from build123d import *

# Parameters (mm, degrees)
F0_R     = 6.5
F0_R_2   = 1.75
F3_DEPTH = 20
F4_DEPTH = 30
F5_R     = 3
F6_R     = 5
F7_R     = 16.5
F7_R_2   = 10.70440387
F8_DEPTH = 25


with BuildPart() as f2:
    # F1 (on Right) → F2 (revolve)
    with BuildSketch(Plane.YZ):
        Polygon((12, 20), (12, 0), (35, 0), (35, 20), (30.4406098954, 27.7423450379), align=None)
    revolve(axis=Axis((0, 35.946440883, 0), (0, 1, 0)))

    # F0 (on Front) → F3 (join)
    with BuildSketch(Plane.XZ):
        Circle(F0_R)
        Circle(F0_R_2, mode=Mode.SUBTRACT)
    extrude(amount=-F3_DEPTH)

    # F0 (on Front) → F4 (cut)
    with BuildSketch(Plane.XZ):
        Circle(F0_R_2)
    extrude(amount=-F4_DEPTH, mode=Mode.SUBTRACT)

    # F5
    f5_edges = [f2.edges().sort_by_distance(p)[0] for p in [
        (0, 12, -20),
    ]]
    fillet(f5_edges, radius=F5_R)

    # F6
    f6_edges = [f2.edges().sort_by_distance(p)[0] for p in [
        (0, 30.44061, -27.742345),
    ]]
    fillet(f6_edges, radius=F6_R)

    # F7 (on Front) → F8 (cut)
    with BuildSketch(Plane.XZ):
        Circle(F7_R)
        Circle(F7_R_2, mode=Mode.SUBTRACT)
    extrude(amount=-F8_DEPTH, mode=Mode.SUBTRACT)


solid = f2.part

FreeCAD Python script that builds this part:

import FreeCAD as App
import Part
import Sketcher
from FreeCAD import Vector


def edges_at(feature, points):
    """Names of the edges that pass closest to the given points."""
    edges = feature.Shape.Edges
    near = lambda p: min(range(len(edges)), key=lambda i: edges[i].distToShape(Part.Vertex(*p))[0])
    return sorted({f"Edge{near(p) + 1}" for p in points})

doc = App.newDocument("Part")
body = doc.addObject("PartDesign::Body", "Body")

sketch1 = body.newObject("Sketcher::SketchObject", "Sketch")
sketch1.AttachmentSupport = (doc.getObject("YZ_Plane"), [""])
sketch1.MapMode = "FlatFace"
sketch1.addGeometry([
    Part.LineSegment(Vector(12, 20, 0), Vector(12, 0, 0)),
    Part.LineSegment(Vector(12, 0, 0), Vector(35, 0, 0)),
    Part.LineSegment(Vector(35, 0, 0), Vector(35, 20, 0)),
    Part.LineSegment(Vector(35, 20, 0), Vector(30, 28, 0)),
    Part.LineSegment(Vector(30, 28, 0), Vector(12, 20, 0)),
], False)
sketch1.addConstraint([
    Sketcher.Constraint("Coincident", 0, 2, 1, 1),
    Sketcher.Constraint("Coincident", 1, 2, 2, 1),
    Sketcher.Constraint("Coincident", 2, 2, 3, 1),
    Sketcher.Constraint("Coincident", 3, 2, 4, 1),
    Sketcher.Constraint("Coincident", 4, 2, 0, 1),
    Sketcher.Constraint("Vertical", 0),
    Sketcher.Constraint("Horizontal", 1),
    Sketcher.Constraint("Vertical", 2),
    Sketcher.Constraint("PointOnObject", 0, 2, -1),
    Sketcher.Constraint("Horizontal", 2, 2, 4, 2),
    Sketcher.Constraint("DistanceX", 1, 1, 1, 2, 23.0),
    Sketcher.Constraint("DistanceY", 0, 2, 0, 1, 20.0),
    Sketcher.Constraint("Distance", 4, 20.0),
    Sketcher.Constraint("DistanceX", -1, 1, 0, 2, 12.0),
    Sketcher.Constraint("DistanceX", -1, 1, 3, 2, 30.44061),
])
revolution = body.newObject("PartDesign::Revolution", "Revolution")
revolution.Profile = sketch1
revolution.ReferenceAxis = (sketch1, ["H_Axis"])
revolution.Angle = 360

sketch2 = body.newObject("Sketcher::SketchObject", "Sketch001")
sketch2.AttachmentSupport = (doc.getObject("XZ_Plane"), [""])
sketch2.MapMode = "FlatFace"
sketch2.addGeometry([
    Part.Circle(Vector(0, 0, 0), Vector(0, 0, 1), 6.5),
    Part.Circle(Vector(0, 0, 0), Vector(0, 0, 1), 1.8),
], False)
sketch2.addConstraint([
    Sketcher.Constraint("Coincident", 0, 3, -1, 1),
    Sketcher.Constraint("Coincident", 1, 3, -1, 1),
    Sketcher.Constraint("Diameter", 0, 13.0),
    Sketcher.Constraint("Diameter", 1, 3.5),
])
pad1 = body.newObject("PartDesign::Pad", "Pad")
pad1.Profile = sketch2
pad1.Length = 20
pad1.Reversed = True

sketch3 = body.newObject("Sketcher::SketchObject", "Sketch002")
sketch3.AttachmentSupport = (doc.getObject("XZ_Plane"), [""])
sketch3.MapMode = "FlatFace"
sketch3.addGeometry(Part.Circle(Vector(0, 0, 0), Vector(0, 0, 1), 1.8), False)
sketch3.addConstraint([
    Sketcher.Constraint("Coincident", 0, 3, -1, 1),
    Sketcher.Constraint("Diameter", 0, 3.5),
])
pocket1 = body.newObject("PartDesign::Pocket", "Pocket")
pocket1.Profile = sketch3
pocket1.Length = 30
doc.recompute()

fillet = body.newObject("PartDesign::Fillet", "Fillet")
fillet.Base = (pocket1, edges_at(pocket1, [(0, 12, -20)]))
fillet.Radius = 3
doc.recompute()

fillet2 = body.newObject("PartDesign::Fillet", "Fillet001")
fillet2.Base = (fillet, edges_at(fillet, [(0, 30.441, -27.742)]))
fillet2.Radius = 5

sketch4 = body.newObject("Sketcher::SketchObject", "Sketch003")
sketch4.AttachmentSupport = (doc.getObject("XZ_Plane"), [""])
sketch4.MapMode = "FlatFace"
sketch4.addGeometry([
    Part.Circle(Vector(0, 0, 0), Vector(0, 0, 1), 16),
    Part.Circle(Vector(0, 0, 0), Vector(0, 0, 1), 11),
], False)
sketch4.addConstraint([
    Sketcher.Constraint("Coincident", 0, 3, -1, 1),
    Sketcher.Constraint("Coincident", 1, 3, -1, 1),
    Sketcher.Constraint("Diameter", 0, 33.0),
    Sketcher.Constraint("Diameter", 1, 21.408808),
])
pocket2 = body.newObject("PartDesign::Pocket", "Pocket001")
pocket2.Profile = sketch4
pocket2.Length = 25

doc.recompute()
